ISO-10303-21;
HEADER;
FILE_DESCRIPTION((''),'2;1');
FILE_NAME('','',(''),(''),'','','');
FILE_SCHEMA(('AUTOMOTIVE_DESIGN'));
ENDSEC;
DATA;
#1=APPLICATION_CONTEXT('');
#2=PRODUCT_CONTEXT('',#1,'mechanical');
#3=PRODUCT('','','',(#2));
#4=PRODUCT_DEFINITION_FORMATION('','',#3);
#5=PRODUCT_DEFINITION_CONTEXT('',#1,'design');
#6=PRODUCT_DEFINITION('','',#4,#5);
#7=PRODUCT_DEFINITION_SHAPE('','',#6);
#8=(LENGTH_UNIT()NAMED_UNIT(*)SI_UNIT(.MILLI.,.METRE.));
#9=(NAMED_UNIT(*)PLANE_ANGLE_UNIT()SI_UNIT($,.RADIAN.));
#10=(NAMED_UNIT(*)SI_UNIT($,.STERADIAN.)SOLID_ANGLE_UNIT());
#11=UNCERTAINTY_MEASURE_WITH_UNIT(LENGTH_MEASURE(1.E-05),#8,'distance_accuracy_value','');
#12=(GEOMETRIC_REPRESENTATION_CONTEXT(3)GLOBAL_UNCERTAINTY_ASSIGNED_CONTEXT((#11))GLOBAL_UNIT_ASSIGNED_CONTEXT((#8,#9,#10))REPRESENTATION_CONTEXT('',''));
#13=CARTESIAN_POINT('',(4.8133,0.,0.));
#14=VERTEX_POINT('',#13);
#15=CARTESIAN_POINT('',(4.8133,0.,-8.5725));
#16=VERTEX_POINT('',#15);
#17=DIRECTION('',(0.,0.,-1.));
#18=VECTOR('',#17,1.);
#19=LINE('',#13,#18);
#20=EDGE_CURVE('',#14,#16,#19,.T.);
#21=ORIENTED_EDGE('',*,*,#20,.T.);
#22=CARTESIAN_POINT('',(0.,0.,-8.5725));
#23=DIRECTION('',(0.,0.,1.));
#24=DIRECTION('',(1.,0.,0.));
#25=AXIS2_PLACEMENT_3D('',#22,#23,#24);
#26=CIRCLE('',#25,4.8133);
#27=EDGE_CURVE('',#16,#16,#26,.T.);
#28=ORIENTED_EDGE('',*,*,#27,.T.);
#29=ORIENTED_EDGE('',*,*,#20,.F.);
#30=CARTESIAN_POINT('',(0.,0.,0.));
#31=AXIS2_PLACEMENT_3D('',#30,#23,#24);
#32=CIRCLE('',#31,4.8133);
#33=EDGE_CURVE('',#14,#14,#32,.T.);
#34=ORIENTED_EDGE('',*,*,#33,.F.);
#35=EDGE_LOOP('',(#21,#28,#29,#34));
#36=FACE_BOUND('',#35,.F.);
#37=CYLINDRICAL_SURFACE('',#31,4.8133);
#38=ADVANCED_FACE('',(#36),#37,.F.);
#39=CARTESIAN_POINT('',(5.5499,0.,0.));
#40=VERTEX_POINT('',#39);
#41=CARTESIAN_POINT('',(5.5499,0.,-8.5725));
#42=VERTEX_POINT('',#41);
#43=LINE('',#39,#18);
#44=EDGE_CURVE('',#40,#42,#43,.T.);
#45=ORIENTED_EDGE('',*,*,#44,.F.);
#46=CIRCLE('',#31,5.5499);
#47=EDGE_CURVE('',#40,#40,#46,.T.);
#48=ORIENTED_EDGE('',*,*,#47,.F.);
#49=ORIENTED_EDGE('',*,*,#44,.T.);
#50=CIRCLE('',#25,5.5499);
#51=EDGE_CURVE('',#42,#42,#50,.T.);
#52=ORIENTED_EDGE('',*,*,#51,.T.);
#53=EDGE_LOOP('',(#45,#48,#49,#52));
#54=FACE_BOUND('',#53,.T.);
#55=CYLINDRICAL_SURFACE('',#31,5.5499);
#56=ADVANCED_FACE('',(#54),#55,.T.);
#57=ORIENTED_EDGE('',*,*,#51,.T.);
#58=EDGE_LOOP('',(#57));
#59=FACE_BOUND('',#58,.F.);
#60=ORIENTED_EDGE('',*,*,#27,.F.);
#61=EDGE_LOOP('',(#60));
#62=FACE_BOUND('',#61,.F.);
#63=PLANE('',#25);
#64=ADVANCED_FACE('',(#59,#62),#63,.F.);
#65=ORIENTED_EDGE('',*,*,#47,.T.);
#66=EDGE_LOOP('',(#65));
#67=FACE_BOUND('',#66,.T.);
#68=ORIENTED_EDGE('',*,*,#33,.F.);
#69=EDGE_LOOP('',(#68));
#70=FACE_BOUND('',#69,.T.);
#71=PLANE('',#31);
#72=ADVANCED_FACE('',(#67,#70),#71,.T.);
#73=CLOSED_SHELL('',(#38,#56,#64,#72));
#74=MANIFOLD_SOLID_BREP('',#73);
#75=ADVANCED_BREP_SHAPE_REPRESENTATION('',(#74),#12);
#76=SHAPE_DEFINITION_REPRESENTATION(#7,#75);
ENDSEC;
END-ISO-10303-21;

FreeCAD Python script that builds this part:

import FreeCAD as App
import Part
import Sketcher
from FreeCAD import Vector
Q = App.Units.Quantity

doc = App.newDocument("Part")
body = doc.addObject("PartDesign::Body", "Body")

# Sketch on XY plane
sketch1 = body.newObject("Sketcher::SketchObject", "Sketch")
sketch1.AttachmentSupport = (doc.getObject("XY_Plane"), [""])
sketch1.MapMode = "FlatFace"
sketch1.addGeometry([
    Part.Circle(Vector(0, 0, 0), Vector(0, 0, 1), 5.5),
    Part.Circle(Vector(0, 0, 0), Vector(0, 0, 1), 4.8),
], False)
sketch1.addConstraint([
    Sketcher.Constraint("Coincident", 0, 3, -1, 1),
    Sketcher.Constraint("Coincident", 1, 3, -1, 1),
    Sketcher.Constraint("Diameter", 0, Q("0.437 in")),
    Sketcher.Constraint("Diameter", 1, Q("0.379 in")),
])
pad1 = body.newObject("PartDesign::Pad", "Pad")
pad1.Profile = sketch1
pad1.Length = Q("0.3375 in")
pad1.Reversed = True

doc.recompute()
